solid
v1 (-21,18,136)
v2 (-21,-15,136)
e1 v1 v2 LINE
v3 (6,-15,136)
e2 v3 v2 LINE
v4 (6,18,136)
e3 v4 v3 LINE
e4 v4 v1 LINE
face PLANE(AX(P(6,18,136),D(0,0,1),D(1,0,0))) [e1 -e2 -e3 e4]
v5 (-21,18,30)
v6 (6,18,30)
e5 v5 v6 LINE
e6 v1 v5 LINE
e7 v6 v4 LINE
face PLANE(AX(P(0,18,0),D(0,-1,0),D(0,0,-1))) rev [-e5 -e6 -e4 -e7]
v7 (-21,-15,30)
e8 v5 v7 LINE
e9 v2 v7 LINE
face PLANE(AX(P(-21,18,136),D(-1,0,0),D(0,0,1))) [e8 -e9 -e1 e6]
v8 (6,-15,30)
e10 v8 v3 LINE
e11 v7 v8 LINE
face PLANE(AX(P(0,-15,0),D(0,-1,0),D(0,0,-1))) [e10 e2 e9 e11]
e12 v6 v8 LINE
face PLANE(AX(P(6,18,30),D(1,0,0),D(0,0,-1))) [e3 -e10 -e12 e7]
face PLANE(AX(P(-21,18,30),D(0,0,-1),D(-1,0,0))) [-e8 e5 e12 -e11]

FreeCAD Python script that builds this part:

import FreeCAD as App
import Part
import Sketcher

V = App.Vector
Q = App.Units.Quantity


def add_polygon(sketch, points):
    """Adds a closed chain of lines whose ends are joined by coincident constraints."""
    first, n = sketch.GeometryCount, len(points)
    for a, b in zip(points, points[1:] + points[:1]):
        sketch.addGeometry(Part.LineSegment(App.Vector(*a, 0), App.Vector(*b, 0)), False)
    for i in range(n):
        sketch.addConstraint(Sketcher.Constraint("Coincident", first + i, 2, first + (i + 1) % n, 1))

doc = App.newDocument("Part")
body = doc.addObject("PartDesign::Body", "Body")

# Sketch on XZ plane
sketch1 = doc.addObject("Sketcher::SketchObject", "Sketch")
body.addObject(sketch1)
sketch1.AttachmentSupport = (doc.XZ_Plane, [""])
sketch1.MapMode = "FlatFace"
sketch1.AttachmentOffset = App.Placement(V(0, 0, 15), App.Rotation())
add_polygon(sketch1, [(-21, 136), (-21, 30), (6, 30), (6, 136)])  # lines 0-3
sketch1.addConstraint(Sketcher.Constraint("Vertical", 0))
sketch1.addConstraint(Sketcher.Constraint("Horizontal", 1))
sketch1.addConstraint(Sketcher.Constraint("Vertical", 2))
sketch1.addConstraint(Sketcher.Constraint("Horizontal", 3))
sketch1.addConstraint(Sketcher.Constraint("DistanceX", 1, 1, 1, 2, Q("27 mm")))
sketch1.addConstraint(Sketcher.Constraint("DistanceY", 0, 2, 0, 1, Q("106 mm")))
sketch1.addConstraint(Sketcher.Constraint("DistanceX", 0, 2, -1, 1, Q("21 mm")))
sketch1.addConstraint(Sketcher.Constraint("DistanceY", -1, 1, 0, 2, Q("30 mm")))
pad1 = doc.addObject("PartDesign::Pad", "Pad")
body.addObject(pad1)
pad1.Profile = sketch1
pad1.Length = 33
pad1.Reversed = True

doc.recompute()
